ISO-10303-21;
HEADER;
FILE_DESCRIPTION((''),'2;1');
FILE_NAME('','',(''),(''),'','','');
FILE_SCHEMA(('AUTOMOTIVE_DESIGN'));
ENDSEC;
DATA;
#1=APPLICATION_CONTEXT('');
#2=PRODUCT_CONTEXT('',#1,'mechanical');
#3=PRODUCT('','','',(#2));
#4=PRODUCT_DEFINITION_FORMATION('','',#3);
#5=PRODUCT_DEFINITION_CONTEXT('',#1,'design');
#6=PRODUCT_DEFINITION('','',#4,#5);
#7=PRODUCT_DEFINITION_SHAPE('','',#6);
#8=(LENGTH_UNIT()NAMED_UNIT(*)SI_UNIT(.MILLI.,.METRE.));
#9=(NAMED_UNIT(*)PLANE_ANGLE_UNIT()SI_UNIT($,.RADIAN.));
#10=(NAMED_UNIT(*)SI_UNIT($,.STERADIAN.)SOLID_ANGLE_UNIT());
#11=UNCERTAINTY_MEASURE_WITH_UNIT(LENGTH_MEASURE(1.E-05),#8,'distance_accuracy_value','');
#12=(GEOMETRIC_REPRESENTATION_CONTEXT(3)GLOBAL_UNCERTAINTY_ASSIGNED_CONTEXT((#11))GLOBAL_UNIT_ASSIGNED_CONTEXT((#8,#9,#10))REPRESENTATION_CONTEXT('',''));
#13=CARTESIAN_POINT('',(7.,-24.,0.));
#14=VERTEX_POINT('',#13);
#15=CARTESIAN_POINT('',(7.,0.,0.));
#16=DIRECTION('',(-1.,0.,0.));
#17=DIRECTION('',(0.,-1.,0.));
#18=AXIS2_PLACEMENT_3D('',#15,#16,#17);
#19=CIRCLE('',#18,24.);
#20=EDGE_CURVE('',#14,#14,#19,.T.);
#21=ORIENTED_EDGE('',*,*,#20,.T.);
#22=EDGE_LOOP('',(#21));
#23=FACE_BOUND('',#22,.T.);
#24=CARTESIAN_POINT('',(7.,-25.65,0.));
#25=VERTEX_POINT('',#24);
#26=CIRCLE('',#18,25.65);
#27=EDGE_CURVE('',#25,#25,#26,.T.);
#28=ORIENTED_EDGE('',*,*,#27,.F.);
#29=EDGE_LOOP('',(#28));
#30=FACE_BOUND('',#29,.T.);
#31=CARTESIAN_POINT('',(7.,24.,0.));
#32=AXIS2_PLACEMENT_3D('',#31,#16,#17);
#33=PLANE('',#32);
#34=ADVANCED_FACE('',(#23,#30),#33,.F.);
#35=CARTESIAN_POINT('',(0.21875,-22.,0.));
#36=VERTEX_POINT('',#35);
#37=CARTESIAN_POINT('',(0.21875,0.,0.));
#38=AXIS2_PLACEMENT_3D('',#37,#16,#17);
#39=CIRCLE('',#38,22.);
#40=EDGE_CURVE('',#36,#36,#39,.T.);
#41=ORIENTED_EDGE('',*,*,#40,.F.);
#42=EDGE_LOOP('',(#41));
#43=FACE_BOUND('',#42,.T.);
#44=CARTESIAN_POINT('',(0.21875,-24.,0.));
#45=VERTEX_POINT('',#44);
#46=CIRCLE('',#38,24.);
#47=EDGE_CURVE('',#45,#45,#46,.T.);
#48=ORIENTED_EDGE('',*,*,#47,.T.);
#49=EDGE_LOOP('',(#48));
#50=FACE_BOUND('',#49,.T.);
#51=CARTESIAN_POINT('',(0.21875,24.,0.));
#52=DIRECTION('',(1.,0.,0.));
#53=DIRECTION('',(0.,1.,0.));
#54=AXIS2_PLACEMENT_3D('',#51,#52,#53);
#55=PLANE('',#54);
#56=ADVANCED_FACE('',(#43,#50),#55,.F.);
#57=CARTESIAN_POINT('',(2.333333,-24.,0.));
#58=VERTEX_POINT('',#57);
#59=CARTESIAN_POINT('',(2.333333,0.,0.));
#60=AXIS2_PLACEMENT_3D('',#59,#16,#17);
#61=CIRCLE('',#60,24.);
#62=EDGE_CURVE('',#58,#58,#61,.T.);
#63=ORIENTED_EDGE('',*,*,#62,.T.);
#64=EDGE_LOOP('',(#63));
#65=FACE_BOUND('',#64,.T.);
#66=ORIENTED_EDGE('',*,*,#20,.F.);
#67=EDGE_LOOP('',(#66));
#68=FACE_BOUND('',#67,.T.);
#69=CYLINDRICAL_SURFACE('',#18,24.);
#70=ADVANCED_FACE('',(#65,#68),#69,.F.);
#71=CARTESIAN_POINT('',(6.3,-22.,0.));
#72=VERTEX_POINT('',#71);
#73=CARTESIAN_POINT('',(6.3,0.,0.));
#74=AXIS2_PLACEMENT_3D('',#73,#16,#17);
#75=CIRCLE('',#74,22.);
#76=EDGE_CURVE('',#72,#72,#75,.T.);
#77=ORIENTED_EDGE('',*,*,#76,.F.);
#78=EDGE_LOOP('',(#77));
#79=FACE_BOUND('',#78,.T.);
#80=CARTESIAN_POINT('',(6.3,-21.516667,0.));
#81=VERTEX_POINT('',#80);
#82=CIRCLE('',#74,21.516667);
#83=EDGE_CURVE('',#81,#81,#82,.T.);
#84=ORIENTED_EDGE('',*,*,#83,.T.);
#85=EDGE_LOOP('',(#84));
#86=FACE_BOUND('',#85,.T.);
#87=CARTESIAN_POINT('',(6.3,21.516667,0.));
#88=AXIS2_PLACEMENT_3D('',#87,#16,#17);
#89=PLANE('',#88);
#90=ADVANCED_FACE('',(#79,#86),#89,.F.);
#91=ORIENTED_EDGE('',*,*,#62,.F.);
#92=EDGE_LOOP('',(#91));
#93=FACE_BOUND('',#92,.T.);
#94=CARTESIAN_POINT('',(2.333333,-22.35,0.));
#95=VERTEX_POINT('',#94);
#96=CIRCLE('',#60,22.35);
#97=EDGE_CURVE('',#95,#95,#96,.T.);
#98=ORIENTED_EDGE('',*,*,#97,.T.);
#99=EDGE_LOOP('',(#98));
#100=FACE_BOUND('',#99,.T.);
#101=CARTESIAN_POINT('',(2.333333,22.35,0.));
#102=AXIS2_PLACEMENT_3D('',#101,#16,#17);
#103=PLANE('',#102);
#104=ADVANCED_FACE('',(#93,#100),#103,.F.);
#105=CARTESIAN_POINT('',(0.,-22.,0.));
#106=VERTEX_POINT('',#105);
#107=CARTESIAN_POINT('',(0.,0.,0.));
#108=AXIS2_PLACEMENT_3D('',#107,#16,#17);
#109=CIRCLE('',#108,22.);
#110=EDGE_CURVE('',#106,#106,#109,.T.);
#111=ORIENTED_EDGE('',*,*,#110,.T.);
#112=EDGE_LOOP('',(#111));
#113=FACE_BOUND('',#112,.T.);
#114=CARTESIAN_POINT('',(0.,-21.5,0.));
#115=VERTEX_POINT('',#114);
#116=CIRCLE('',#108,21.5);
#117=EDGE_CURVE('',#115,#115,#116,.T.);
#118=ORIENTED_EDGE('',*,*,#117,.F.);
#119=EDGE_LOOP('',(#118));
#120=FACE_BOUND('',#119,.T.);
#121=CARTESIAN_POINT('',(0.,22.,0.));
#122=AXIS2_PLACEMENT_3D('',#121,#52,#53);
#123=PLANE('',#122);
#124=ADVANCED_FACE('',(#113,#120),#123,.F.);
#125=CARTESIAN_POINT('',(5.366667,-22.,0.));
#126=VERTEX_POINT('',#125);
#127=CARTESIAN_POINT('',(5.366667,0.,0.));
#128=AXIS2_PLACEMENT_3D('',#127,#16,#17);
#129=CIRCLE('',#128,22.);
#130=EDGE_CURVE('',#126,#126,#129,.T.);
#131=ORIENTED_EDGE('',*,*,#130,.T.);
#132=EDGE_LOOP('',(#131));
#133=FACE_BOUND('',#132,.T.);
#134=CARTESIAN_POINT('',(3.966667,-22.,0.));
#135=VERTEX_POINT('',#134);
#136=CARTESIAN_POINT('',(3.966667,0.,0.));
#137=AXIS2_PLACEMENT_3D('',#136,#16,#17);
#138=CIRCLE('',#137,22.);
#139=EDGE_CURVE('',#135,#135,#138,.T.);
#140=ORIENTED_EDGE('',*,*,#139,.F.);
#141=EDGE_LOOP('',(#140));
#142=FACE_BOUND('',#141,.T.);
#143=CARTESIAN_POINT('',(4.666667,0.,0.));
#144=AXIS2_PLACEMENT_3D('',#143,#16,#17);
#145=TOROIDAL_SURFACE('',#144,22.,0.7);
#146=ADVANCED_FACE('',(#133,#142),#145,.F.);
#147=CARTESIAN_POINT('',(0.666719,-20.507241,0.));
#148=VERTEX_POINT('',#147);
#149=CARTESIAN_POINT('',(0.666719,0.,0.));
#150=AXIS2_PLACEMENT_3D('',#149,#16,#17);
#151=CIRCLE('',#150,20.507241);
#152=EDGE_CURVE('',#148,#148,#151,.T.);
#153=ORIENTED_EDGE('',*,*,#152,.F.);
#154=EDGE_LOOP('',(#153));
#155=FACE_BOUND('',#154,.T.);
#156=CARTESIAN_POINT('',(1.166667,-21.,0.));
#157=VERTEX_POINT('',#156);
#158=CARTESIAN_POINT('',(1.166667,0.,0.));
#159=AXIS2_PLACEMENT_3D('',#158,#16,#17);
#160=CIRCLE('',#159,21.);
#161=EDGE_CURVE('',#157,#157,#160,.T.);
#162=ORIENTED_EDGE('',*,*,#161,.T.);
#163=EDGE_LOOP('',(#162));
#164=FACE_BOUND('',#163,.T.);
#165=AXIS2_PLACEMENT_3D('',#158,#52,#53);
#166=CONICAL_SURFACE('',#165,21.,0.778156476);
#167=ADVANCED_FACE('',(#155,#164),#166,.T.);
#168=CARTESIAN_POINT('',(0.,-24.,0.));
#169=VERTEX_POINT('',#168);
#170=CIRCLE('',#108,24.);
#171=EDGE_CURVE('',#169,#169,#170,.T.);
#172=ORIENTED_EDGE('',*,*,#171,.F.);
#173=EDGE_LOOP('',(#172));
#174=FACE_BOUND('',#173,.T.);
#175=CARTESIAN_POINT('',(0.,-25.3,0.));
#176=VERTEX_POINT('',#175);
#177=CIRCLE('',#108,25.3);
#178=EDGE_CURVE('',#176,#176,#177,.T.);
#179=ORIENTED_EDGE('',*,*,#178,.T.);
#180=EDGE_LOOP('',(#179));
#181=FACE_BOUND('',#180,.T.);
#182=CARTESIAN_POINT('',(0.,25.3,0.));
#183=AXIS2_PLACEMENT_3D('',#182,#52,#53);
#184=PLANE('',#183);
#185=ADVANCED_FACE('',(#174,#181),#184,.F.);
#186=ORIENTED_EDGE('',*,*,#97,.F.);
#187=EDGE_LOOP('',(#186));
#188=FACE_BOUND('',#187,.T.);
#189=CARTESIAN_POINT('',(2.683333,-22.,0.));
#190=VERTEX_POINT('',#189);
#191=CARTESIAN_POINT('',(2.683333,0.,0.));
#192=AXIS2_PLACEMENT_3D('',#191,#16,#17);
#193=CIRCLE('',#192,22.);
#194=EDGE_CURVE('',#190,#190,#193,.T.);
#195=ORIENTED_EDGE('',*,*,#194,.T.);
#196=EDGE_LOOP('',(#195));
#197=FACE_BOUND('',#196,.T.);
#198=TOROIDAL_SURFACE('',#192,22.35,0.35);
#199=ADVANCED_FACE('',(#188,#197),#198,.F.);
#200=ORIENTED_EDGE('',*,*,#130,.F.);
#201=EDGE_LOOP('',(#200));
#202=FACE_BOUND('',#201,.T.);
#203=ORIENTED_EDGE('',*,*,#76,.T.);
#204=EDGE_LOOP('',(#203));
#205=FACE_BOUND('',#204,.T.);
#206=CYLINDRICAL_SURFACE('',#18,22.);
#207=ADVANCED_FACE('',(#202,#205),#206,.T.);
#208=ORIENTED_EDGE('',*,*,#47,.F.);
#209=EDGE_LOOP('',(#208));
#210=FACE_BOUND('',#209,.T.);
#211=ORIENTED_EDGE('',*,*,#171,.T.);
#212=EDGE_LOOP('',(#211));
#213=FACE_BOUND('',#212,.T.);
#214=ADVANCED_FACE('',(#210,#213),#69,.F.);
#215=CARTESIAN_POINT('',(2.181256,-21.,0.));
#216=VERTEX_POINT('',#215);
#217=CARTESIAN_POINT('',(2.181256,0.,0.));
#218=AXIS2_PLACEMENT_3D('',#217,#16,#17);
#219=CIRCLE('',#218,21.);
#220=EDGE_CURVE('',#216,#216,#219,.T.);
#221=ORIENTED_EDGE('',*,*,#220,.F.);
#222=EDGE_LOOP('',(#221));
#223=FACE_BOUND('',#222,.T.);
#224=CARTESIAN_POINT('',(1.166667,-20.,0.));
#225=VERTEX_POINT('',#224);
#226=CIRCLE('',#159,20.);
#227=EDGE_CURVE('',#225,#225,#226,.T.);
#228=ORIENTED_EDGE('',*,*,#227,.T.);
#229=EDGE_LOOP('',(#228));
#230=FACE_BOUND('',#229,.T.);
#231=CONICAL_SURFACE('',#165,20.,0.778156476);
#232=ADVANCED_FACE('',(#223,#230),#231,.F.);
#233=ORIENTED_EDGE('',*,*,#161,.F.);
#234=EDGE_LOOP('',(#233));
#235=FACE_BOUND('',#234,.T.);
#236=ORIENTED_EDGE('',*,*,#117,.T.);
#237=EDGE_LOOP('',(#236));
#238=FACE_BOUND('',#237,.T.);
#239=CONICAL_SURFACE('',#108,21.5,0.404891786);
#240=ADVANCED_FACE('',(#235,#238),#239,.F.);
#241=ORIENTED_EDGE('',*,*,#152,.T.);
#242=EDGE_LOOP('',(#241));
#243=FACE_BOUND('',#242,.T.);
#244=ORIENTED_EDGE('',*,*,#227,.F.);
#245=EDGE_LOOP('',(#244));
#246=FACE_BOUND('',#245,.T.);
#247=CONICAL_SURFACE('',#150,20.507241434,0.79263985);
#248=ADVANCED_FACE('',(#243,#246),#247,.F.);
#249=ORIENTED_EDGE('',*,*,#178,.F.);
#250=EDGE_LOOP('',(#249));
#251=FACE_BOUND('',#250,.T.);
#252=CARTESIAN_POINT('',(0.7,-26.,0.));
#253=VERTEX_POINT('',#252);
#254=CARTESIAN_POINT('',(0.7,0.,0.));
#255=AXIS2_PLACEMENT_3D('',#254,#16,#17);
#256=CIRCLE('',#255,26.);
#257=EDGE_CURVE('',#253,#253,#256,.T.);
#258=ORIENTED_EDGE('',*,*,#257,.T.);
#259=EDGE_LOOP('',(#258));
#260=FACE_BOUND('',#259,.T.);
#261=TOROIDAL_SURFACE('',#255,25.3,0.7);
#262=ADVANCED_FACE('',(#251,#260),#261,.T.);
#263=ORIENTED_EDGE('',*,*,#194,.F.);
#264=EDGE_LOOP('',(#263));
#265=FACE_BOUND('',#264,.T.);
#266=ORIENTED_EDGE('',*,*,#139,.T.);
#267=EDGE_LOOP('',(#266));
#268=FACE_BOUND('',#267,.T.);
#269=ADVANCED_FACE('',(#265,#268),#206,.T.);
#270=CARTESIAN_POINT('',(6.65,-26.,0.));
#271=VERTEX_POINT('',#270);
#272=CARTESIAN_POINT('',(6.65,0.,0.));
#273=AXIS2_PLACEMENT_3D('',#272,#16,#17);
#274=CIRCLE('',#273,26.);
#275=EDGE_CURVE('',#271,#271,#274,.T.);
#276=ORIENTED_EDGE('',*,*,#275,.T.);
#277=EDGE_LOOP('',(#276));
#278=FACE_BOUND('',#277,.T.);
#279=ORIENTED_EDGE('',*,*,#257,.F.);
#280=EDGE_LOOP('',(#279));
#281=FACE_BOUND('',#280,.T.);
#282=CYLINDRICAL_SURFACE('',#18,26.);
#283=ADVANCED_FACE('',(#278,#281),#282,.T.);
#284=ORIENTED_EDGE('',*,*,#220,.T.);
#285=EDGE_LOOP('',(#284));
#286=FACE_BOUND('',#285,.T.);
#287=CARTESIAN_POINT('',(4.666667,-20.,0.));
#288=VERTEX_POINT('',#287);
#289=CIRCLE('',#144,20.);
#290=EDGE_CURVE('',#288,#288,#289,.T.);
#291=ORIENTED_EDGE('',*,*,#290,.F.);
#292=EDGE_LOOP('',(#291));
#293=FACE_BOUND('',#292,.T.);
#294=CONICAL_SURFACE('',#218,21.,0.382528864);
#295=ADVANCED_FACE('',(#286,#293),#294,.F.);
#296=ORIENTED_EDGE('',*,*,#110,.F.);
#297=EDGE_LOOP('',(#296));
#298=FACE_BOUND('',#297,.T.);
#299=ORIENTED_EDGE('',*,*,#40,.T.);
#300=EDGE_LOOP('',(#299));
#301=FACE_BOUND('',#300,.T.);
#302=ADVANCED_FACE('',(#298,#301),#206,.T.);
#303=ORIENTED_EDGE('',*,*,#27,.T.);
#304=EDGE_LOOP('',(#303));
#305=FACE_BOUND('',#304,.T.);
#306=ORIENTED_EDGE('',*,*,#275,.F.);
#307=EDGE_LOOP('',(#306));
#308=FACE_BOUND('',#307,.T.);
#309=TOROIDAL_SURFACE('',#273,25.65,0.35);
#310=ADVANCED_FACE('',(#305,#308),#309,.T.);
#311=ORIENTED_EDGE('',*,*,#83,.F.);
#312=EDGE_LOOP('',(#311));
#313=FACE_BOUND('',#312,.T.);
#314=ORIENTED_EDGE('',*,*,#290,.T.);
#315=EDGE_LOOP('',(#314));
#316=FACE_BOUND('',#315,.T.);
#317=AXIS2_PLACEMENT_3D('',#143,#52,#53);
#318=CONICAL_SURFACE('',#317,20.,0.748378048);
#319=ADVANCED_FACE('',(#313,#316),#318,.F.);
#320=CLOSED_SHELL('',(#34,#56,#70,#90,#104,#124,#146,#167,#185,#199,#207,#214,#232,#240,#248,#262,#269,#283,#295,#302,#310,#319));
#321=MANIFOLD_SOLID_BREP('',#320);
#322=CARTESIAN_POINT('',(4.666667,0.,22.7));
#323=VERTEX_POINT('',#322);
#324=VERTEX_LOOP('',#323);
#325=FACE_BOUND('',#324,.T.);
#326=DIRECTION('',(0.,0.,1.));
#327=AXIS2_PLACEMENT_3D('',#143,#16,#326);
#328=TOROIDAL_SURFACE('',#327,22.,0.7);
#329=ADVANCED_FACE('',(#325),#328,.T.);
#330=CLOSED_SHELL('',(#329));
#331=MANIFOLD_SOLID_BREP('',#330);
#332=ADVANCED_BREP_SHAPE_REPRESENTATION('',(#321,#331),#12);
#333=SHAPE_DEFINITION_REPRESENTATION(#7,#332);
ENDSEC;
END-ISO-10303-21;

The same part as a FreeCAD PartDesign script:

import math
import FreeCAD as App
import Part
import Sketcher

V = App.Vector

doc = App.newDocument("Part")
body = doc.addObject("PartDesign::Body", "Body")

# Sketch on XY plane
sketch1 = body.newObject("Sketcher::SketchObject", "Sketch")
sketch1.AttachmentSupport = (doc.getObject("XY_Plane"), [""])
sketch1.MapMode = "FlatFace"
sketch1.addGeometry(Part.LineSegment(V(0, 24, 0), V(0.22, 24, 0)), False)
sketch1.addGeometry(Part.LineSegment(V(0.22, 24, 0), V(0.22, 22, 0)), False)
sketch1.addGeometry(Part.LineSegment(V(0.22, 22, 0), V(0, 22, 0)), False)
sketch1.addGeometry(Part.LineSegment(V(0, 22, 0), V(0, 21.5, 0)), False)
sketch1.addGeometry(Part.LineSegment(V(0, 21.5, 0), V(1.17, 21, 0)), False)
sketch1.addGeometry(Part.LineSegment(V(1.17, 21, 0), V(0.67, 20.51, 0)), False)
sketch1.addGeometry(Part.LineSegment(V(0.67, 20.51, 0), V(1.17, 20, 0)), False)
sketch1.addGeometry(Part.LineSegment(V(1.17, 20, 0), V(2.18, 21, 0)), False)
sketch1.addGeometry(Part.LineSegment(V(2.18, 21, 0), V(4.67, 20, 0)), False)
sketch1.addGeometry(Part.LineSegment(V(4.67, 20, 0), V(6.3, 21.52, 0)), False)
sketch1.addGeometry(Part.LineSegment(V(6.3, 21.52, 0), V(6.3, 22, 0)), False)
sketch1.addGeometry(Part.LineSegment(V(6.3, 22, 0), V(5.37, 22, 0)), False)
sketch1.addGeometry(Part.ArcOfCircle(Part.Circle(V(4.67, 22, 0), V(0, 0, 1), 0.7), math.radians(180), math.radians(360)), False)
sketch1.addGeometry(Part.LineSegment(V(3.97, 22, 0), V(2.68, 22, 0)), False)
sketch1.addGeometry(Part.ArcOfCircle(Part.Circle(V(2.68, 22.35, 0), V(0, 0, 1), 0.35), math.radians(-180), math.radians(-90)), False)
sketch1.addGeometry(Part.LineSegment(V(2.33, 22.35, 0), V(2.33, 24, 0)), False)
sketch1.addGeometry(Part.LineSegment(V(2.33, 24, 0), V(7, 24, 0)), False)
sketch1.addGeometry(Part.LineSegment(V(7, 24, 0), V(7, 25.65, 0)), False)
sketch1.addGeometry(Part.ArcOfCircle(Part.Circle(V(6.65, 25.65, 0), V(0, 0, 1), 0.35), math.radians(0), math.radians(90)), False)
sketch1.addGeometry(Part.LineSegment(V(6.65, 26, 0), V(0.7, 26, 0)), False)
sketch1.addGeometry(Part.ArcOfCircle(Part.Circle(V(0.7, 25.3, 0), V(0, 0, 1), 0.7), math.radians(90), math.radians(180)), False)
sketch1.addGeometry(Part.LineSegment(V(0, 25.3, 0), V(0, 24, 0)), False)
sketch1.addConstraint(Sketcher.Constraint("Coincident", 0, 2, 1, 1))
sketch1.addConstraint(Sketcher.Constraint("Coincident", 1, 2, 2, 1))
sketch1.addConstraint(Sketcher.Constraint("Coincident", 2, 2, 3, 1))
sketch1.addConstraint(Sketcher.Constraint("Coincident", 3, 2, 4, 1))
sketch1.addConstraint(Sketcher.Constraint("Coincident", 4, 2, 5, 1))
sketch1.addConstraint(Sketcher.Constraint("Coincident", 5, 2, 6, 1))
sketch1.addConstraint(Sketcher.Constraint("Coincident", 6, 2, 7, 1))
sketch1.addConstraint(Sketcher.Constraint("Coincident", 7, 2, 8, 1))
sketch1.addConstraint(Sketcher.Constraint("Coincident", 8, 2, 9, 1))
sketch1.addConstraint(Sketcher.Constraint("Coincident", 9, 2, 10, 1))
sketch1.addConstraint(Sketcher.Constraint("Coincident", 10, 2, 11, 1))
sketch1.addConstraint(Sketcher.Constraint("Coincident", 11, 2, 12, 2))
sketch1.addConstraint(Sketcher.Constraint("Coincident", 12, 1, 13, 1))
sketch1.addConstraint(Sketcher.Constraint("Tangent", 13, 2, 14, 2))
sketch1.addConstraint(Sketcher.Constraint("Tangent", 14, 1, 15, 1))
sketch1.addConstraint(Sketcher.Constraint("Coincident", 15, 2, 16, 1))
sketch1.addConstraint(Sketcher.Constraint("Coincident", 16, 2, 17, 1))
sketch1.addConstraint(Sketcher.Constraint("Tangent", 17, 2, 18, 1))
sketch1.addConstraint(Sketcher.Constraint("Tangent", 18, 2, 19, 1))
sketch1.addConstraint(Sketcher.Constraint("Tangent", 19, 2, 20, 1))
sketch1.addConstraint(Sketcher.Constraint("Tangent", 20, 2, 21, 1))
sketch1.addConstraint(Sketcher.Constraint("Coincident", 21, 2, 0, 1))
sketch1.addConstraint(Sketcher.Constraint("Horizontal", 0))
sketch1.addConstraint(Sketcher.Constraint("Vertical", 1))
sketch1.addConstraint(Sketcher.Constraint("Horizontal", 2))
sketch1.addConstraint(Sketcher.Constraint("Vertical", 3))
sketch1.addConstraint(Sketcher.Constraint("Vertical", 10))
sketch1.addConstraint(Sketcher.Constraint("Horizontal", 11))
sketch1.addConstraint(Sketcher.Constraint("Horizontal", 13))
sketch1.addConstraint(Sketcher.Constraint("Vertical", 15))
sketch1.addConstraint(Sketcher.Constraint("Horizontal", 16))
sketch1.addConstraint(Sketcher.Constraint("Vertical", 17))
sketch1.addConstraint(Sketcher.Constraint("Horizontal", 19))
sketch1.addConstraint(Sketcher.Constraint("Vertical", 21))
sketch1.addConstraint(Sketcher.Constraint("Equal", 14, 18))
sketch1.addConstraint(Sketcher.Constraint("Equal", 12, 20))
sketch1.addConstraint(Sketcher.Constraint("PointOnObject", 2, 2, -2))
sketch1.addConstraint(Sketcher.Constraint("PointOnObject", 20, 2, -2))
sketch1.addConstraint(Sketcher.Constraint("Perpendicular", 5, 6))
sketch1.addConstraint(Sketcher.Constraint("Perpendicular", 6, 7))
sketch1.addConstraint(Sketcher.Constraint("Horizontal", 12, 3, 1, 2))
sketch1.addConstraint(Sketcher.Constraint("Horizontal", 4, 2, 7, 2))
sketch1.addConstraint(Sketcher.Constraint("Horizontal", 6, 2, 8, 2))
sketch1.addConstraint(Sketcher.Constraint("Horizontal", 2, 2, 10, 2))
sketch1.addConstraint(Sketcher.Constraint("Horizontal", 11, 2, 12, 1))
sketch1.addConstraint(Sketcher.Constraint("Horizontal", 0, 2, 15, 2))
sketch1.addConstraint(Sketcher.Constraint("Vertical", 4, 2, 6, 2))
sketch1.addConstraint(Sketcher.Constraint("Vertical", 12, 3, 8, 2))
sketch1.addConstraint(Sketcher.Constraint("Equal", 15, 17))
sketch1.addConstraint(Sketcher.Constraint("Radius", 12, 0.7))
sketch1.addConstraint(Sketcher.Constraint("DistanceY", 1, 2, 1, 1, 2.0))
sketch1.addConstraint(Sketcher.Constraint("Radius", 14, 0.35))
sketch1.addConstraint(Sketcher.Constraint("DistanceY", 3, 2, 3, 1, 0.5))
sketch1.addConstraint(Sketcher.Constraint("DistanceY", -1, 1, 12, 3, 22.0))
sketch1.addConstraint(Sketcher.Constraint("DistanceY", -1, 1, 4, 2, 21.0))
sketch1.addConstraint(Sketcher.Constraint("DistanceY", -1, 1, 6, 2, 20.0))
sketch1.addConstraint(Sketcher.Constraint("DistanceX", -1, 1, 16, 2, 7.0))
sketch1.addConstraint(Sketcher.Constraint("DistanceX", -1, 1, 9, 2, 6.3))
sketch1.addConstraint(Sketcher.Constraint("DistanceX", 6, 2, 8, 2, 3.5))
sketch1.addConstraint(Sketcher.Constraint("DistanceX", 0, 1, 0, 2, 0.21875))
sketch1.addConstraint(Sketcher.Constraint("Distance", 6, 0.712209))
sketch1.addConstraint(Sketcher.Constraint("DistanceX", 11, 2, 11, 1, 0.933333))
sketch1.addConstraint(Sketcher.Constraint("DistanceX", 13, 2, 13, 1, 1.283333))
sketch1.addConstraint(Sketcher.Constraint("DistanceY", 10, 1, 10, 2, 0.483333))
revolution = body.newObject("PartDesign::Revolution", "Revolution")
revolution.Profile = sketch1
revolution.ReferenceAxis = (sketch1, ["H_Axis"])
revolution.Angle = 360
body2 = doc.addObject("PartDesign::Body", "Body001")

# Sketch on XY plane
sketch2 = body2.newObject("Sketcher::SketchObject", "Sketch001")
sketch2.AttachmentSupport = (doc.getObject("XY_Plane001"), [""])
sketch2.MapMode = "FlatFace"
sketch2.addGeometry(Part.Circle(V(4.7, 22, 0), V(0, 0, 1), 0.7), False)
sketch2.addConstraint(Sketcher.Constraint("Diameter", 0, 1.4))
sketch2.addConstraint(Sketcher.Constraint("DistanceY", -1, 1, 0, 3, 22.0))
sketch2.addConstraint(Sketcher.Constraint("DistanceX", -1, 1, 0, 3, 4.666667))
revolution2 = body2.newObject("PartDesign::Revolution", "Revolution001")
revolution2.Profile = sketch2
revolution2.ReferenceAxis = (sketch2, ["H_Axis"])
revolution2.Angle = 360

doc.recompute()
